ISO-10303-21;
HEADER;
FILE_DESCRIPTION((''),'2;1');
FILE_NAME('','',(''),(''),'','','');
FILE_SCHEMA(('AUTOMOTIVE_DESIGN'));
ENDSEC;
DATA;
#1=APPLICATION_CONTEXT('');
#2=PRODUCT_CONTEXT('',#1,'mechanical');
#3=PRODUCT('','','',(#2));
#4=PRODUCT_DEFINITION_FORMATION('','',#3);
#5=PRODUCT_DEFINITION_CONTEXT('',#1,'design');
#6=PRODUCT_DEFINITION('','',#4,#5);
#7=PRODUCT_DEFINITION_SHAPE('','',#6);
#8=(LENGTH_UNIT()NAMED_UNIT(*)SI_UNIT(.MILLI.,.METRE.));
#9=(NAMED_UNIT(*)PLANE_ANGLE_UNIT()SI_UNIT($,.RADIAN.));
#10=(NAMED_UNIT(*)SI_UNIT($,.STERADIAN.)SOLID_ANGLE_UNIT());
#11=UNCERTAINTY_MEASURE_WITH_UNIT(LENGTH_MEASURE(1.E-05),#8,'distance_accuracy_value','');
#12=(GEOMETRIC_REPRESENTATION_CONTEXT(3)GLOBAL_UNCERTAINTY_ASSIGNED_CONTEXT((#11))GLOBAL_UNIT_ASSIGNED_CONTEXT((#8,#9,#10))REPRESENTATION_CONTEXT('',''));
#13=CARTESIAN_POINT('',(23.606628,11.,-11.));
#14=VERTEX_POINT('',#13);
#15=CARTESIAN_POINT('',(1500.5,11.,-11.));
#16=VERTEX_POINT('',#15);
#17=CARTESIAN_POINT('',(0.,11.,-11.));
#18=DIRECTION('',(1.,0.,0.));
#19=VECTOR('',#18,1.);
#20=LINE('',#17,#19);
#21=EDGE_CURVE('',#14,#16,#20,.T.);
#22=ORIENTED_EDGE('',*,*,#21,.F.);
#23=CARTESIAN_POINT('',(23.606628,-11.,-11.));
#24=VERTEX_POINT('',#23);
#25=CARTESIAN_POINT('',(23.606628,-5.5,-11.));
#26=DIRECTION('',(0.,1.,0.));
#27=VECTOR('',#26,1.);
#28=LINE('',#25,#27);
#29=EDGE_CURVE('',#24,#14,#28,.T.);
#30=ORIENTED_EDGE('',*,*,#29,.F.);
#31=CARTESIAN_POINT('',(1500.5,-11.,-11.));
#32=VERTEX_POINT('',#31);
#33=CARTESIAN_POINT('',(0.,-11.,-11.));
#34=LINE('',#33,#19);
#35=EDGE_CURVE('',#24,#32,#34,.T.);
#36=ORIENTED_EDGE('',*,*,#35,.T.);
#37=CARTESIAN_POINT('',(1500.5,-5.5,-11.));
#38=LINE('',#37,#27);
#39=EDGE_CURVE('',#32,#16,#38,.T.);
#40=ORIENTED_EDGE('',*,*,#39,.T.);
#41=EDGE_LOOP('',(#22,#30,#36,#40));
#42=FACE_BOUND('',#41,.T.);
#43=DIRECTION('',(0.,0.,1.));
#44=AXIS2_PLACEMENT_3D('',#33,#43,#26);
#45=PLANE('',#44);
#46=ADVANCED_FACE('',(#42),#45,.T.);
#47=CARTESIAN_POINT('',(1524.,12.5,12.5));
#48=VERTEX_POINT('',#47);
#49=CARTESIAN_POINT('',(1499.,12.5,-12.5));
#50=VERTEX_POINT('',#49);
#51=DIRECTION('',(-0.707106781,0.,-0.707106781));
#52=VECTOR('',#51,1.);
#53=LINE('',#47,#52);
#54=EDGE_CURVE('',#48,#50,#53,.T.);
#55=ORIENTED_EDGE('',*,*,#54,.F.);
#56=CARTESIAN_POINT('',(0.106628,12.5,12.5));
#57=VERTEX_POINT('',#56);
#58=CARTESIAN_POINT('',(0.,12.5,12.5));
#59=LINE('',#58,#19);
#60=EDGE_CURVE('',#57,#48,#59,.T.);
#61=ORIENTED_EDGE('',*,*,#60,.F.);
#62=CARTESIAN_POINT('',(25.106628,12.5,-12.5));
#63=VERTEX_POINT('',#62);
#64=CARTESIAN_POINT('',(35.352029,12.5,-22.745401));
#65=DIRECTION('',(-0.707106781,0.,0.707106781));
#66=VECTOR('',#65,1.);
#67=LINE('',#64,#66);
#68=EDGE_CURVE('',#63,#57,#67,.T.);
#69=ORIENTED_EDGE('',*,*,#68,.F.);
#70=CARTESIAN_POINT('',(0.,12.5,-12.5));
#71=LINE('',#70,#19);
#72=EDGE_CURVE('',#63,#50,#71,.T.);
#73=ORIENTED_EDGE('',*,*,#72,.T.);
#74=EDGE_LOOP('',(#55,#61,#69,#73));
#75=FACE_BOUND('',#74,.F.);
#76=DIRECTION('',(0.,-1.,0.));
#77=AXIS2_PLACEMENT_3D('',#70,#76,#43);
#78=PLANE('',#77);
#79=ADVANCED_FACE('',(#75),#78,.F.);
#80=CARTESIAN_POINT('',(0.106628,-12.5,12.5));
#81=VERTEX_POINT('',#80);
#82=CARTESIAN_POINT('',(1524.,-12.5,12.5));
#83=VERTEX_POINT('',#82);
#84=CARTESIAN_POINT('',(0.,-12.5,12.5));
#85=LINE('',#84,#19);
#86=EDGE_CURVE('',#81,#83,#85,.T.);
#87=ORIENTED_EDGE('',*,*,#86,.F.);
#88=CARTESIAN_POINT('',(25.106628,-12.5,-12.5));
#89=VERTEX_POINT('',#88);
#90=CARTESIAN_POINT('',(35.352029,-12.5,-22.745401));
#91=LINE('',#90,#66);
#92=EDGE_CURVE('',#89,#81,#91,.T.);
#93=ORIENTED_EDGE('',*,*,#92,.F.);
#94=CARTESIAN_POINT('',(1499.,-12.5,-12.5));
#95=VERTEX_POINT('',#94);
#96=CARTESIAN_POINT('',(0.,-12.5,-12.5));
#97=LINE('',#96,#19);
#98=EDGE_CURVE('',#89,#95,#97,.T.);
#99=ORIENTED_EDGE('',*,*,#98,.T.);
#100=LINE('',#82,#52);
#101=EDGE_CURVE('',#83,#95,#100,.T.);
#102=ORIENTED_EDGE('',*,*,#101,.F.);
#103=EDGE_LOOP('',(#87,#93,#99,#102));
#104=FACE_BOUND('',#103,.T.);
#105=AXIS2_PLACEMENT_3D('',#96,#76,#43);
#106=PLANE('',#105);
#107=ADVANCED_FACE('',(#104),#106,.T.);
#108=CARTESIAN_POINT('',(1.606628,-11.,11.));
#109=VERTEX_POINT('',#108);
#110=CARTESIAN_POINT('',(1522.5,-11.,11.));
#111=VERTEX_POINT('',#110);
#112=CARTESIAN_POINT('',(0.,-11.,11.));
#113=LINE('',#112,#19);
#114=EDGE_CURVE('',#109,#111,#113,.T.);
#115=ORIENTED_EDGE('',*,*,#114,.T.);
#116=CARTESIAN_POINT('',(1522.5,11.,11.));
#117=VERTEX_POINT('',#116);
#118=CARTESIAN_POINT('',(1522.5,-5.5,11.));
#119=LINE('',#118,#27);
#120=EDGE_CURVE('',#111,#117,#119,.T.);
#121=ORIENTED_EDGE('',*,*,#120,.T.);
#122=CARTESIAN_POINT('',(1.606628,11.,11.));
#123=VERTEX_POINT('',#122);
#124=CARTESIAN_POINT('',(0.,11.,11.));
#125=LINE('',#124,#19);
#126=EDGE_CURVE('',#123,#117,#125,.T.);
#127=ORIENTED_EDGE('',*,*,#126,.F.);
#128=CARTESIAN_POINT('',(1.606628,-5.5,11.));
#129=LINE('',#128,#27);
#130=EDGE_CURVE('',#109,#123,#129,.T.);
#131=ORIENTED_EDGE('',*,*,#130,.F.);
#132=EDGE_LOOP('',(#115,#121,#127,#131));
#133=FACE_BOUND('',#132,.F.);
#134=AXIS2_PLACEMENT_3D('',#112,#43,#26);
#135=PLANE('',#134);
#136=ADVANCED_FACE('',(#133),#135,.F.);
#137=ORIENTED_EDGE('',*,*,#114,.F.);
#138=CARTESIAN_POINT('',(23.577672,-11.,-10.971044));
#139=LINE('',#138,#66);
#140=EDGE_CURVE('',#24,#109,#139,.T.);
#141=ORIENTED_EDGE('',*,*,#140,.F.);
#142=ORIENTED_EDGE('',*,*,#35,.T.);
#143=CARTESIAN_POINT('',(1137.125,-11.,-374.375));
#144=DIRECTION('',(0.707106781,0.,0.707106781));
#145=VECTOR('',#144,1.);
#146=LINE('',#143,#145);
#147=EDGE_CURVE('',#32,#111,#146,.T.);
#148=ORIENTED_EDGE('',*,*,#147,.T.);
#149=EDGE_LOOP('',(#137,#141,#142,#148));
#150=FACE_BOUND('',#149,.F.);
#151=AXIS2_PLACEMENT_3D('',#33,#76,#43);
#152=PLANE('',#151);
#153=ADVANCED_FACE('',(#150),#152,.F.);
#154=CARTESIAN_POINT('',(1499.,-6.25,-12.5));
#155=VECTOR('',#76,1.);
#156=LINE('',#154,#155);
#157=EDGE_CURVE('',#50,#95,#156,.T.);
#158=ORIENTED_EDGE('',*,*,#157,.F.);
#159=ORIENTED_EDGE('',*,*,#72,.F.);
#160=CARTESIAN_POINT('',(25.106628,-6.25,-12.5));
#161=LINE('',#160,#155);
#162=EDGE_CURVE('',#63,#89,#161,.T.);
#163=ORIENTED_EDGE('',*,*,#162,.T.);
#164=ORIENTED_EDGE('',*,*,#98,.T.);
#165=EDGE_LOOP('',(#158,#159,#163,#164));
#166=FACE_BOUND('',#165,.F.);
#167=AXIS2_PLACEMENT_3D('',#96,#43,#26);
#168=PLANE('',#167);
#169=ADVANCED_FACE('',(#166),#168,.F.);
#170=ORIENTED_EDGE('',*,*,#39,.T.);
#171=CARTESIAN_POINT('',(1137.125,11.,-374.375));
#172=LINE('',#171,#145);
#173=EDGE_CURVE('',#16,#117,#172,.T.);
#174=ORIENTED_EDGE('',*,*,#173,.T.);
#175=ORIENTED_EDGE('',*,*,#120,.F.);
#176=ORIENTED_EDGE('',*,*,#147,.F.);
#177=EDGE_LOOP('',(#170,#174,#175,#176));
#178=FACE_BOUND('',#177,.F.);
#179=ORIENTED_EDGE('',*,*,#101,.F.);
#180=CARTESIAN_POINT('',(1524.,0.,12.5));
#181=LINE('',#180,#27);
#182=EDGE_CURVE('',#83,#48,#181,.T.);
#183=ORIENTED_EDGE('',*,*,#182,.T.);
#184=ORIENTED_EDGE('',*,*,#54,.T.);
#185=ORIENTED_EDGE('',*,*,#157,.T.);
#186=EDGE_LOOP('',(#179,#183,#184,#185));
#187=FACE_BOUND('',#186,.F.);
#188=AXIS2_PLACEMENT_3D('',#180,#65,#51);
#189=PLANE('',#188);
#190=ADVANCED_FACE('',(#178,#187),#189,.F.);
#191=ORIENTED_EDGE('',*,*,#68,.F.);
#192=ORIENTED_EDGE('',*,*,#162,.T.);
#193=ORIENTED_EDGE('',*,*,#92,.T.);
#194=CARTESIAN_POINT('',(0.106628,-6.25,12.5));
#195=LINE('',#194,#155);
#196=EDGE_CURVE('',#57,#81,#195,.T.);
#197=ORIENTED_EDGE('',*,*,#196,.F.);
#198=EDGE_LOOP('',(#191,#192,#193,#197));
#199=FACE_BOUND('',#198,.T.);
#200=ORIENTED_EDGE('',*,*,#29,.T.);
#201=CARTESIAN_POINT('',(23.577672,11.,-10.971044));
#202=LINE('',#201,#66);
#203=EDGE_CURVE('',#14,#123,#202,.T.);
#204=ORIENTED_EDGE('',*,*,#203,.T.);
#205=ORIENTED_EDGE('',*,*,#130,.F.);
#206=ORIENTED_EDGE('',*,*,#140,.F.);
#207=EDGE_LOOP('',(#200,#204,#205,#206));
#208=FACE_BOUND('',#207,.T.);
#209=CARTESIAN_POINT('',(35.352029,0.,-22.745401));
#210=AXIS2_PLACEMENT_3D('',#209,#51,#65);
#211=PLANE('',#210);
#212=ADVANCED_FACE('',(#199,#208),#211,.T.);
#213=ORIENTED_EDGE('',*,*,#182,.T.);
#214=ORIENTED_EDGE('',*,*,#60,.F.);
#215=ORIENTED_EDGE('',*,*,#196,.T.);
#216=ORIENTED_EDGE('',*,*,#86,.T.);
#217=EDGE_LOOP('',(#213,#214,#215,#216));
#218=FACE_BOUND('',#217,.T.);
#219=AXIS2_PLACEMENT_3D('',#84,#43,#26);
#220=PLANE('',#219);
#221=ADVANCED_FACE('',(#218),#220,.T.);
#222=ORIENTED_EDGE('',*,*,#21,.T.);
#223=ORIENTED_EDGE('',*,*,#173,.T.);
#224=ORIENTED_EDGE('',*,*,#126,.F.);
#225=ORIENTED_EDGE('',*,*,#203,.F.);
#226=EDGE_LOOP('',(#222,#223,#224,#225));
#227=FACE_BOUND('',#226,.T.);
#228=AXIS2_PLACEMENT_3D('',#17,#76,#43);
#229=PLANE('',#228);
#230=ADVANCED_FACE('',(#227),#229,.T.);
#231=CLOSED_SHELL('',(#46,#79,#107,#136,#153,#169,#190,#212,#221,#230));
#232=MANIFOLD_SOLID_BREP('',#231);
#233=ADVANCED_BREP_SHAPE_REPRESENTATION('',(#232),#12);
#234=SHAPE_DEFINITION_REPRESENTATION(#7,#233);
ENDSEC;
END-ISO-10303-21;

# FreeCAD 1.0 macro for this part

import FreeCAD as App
import Part
import Sketcher
from FreeCAD import Vector
Q = App.Units.Quantity

doc = App.newDocument("Part")
body = doc.addObject("PartDesign::Body", "Body")

sketch1 = doc.addObject("Sketcher::SketchObject", "Sketch")
body.addObject(sketch1)
sketch1.AttachmentSupport = (doc.YZ_Plane, [""])
sketch1.MapMode = "FlatFace"
sketch1.addGeometry(Part.LineSegment(Vector(-12.5, 12.5, 0), Vector(-12.5, -12.5, 0)), False)
sketch1.addGeometry(Part.LineSegment(Vector(-12.5, -12.5, 0), Vector(12.5, -12.5, 0)), False)
sketch1.addGeometry(Part.LineSegment(Vector(12.5, -12.5, 0), Vector(12.5, 12.5, 0)), False)
sketch1.addGeometry(Part.LineSegment(Vector(12.5, 12.5, 0), Vector(-12.5, 12.5, 0)), False)
sketch1.addConstraint(Sketcher.Constraint("Coincident", 0, 2, 1, 1))
sketch1.addConstraint(Sketcher.Constraint("Coincident", 1, 2, 2, 1))
sketch1.addConstraint(Sketcher.Constraint("Coincident", 2, 2, 3, 1))
sketch1.addConstraint(Sketcher.Constraint("Coincident", 3, 2, 0, 1))
sketch1.addConstraint(Sketcher.Constraint("Vertical", 0))
sketch1.addConstraint(Sketcher.Constraint("Horizontal", 1))
sketch1.addConstraint(Sketcher.Constraint("Vertical", 2))
sketch1.addConstraint(Sketcher.Constraint("Horizontal", 3))
sketch1.addConstraint(Sketcher.Constraint("Symmetric", 0, 2, 2, 2, -1, 1))
sketch1.addConstraint(Sketcher.Constraint("Equal", 3, 0))
sketch1.addConstraint(Sketcher.Constraint("DistanceX", 1, 1, 1, 2, 25.0))
pad1 = doc.addObject("PartDesign::Pad", "Pad")
body.addObject(pad1)
pad1.Profile = sketch1
pad1.Length = 1524

sketch2 = doc.addObject("Sketcher::SketchObject", "Sketch001")
body.addObject(sketch2)
sketch2.AttachmentSupport = (doc.XZ_Plane, [""])
sketch2.MapMode = "FlatFace"
sketch2.addGeometry(Part.LineSegment(Vector(35.352029, -22.745401, 0), Vector(0, 12.606628, 0)), False)
sketch2.addGeometry(Part.LineSegment(Vector(0, 12.606628, 0), Vector(0, -26.686775, 0)), False)
sketch2.addGeometry(Part.LineSegment(Vector(0, -26.686775, 0), Vector(35.352029, -22.745401, 0)), False)
sketch2.addGeometry(Part.LineSegment(Vector(1524, -22.745401, 0), Vector(1524, 12.5, 0)), False)
sketch2.addGeometry(Part.LineSegment(Vector(1524, 12.5, 0), Vector(1494.63703, -16.86297, 0)), False)
sketch2.addGeometry(Part.LineSegment(Vector(1494.63703, -16.86297, 0), Vector(1524, -22.745401, 0)), False)
sketch2.addConstraint(Sketcher.Constraint("Coincident", 0, 2, 1, 1))
sketch2.addConstraint(Sketcher.Constraint("Coincident", 1, 2, 2, 1))
sketch2.addConstraint(Sketcher.Constraint("Coincident", 2, 2, 0, 1))
sketch2.addConstraint(Sketcher.Constraint("Coincident", 3, 2, 4, 1))
sketch2.addConstraint(Sketcher.Constraint("Coincident", 4, 2, 5, 1))
sketch2.addConstraint(Sketcher.Constraint("Coincident", 5, 2, 3, 1))
sketch2.addConstraint(Sketcher.Constraint("Vertical", 1))
sketch2.addConstraint(Sketcher.Constraint("Vertical", 3))
sketch2.addConstraint(Sketcher.Constraint("PointOnObject", 0, 2, -2))
sketch2.addConstraint(Sketcher.Constraint("Perpendicular", 0, 4))
sketch2.addConstraint(Sketcher.Constraint("Horizontal", 2, 2, 5, 2))
sketch2.addConstraint(Sketcher.Constraint("Angle", 0, Q("135 deg")))
sketch2.addConstraint(Sketcher.Constraint("DistanceX", -1, 1, 3, 2, 1524.0))
sketch2.addConstraint(Sketcher.Constraint("DistanceY", -1, 1, 3, 2, 12.5))
sketch2.addConstraint(Sketcher.Constraint("DistanceY", 3, 1, 3, 2, 35.245401))
sketch2.addConstraint(Sketcher.Constraint("DistanceX", 2, 2, 4, 2, 1459.285001))
sketch2.addConstraint(Sketcher.Constraint("Distance", 0, 49.995319))
sketch2.addConstraint(Sketcher.Constraint("Distance", 2, 35.571061))
pocket1 = doc.addObject("PartDesign::Pocket", "Pocket")
body.addObject(pocket1)
pocket1.Profile = sketch2
pocket1.Length = 25
pocket1.Midplane = True

sketch3 = doc.addObject("Sketcher::SketchObject", "Sketch002")
body.addObject(sketch3)
sketch3.AttachmentSupport = (doc.YZ_Plane, [""])
sketch3.MapMode = "FlatFace"
sketch3.addGeometry(Part.LineSegment(Vector(-11, 11, 0), Vector(-11, -11, 0)), False)
sketch3.addGeometry(Part.LineSegment(Vector(-11, -11, 0), Vector(11, -11, 0)), False)
sketch3.addGeometry(Part.LineSegment(Vector(11, -11, 0), Vector(11, 11, 0)), False)
sketch3.addGeometry(Part.LineSegment(Vector(11, 11, 0), Vector(-11, 11, 0)), False)
sketch3.addConstraint(Sketcher.Constraint("Coincident", 0, 2, 1, 1))
sketch3.addConstraint(Sketcher.Constraint("Coincident", 1, 2, 2, 1))
sketch3.addConstraint(Sketcher.Constraint("Coincident", 2, 2, 3, 1))
sketch3.addConstraint(Sketcher.Constraint("Coincident", 3, 2, 0, 1))
sketch3.addConstraint(Sketcher.Constraint("Vertical", 0))
sketch3.addConstraint(Sketcher.Constraint("Horizontal", 1))
sketch3.addConstraint(Sketcher.Constraint("Vertical", 2))
sketch3.addConstraint(Sketcher.Constraint("Horizontal", 3))
sketch3.addConstraint(Sketcher.Constraint("Symmetric", 0, 2, 2, 2, -1, 1))
sketch3.addConstraint(Sketcher.Constraint("Equal", 3, 0))
sketch3.addConstraint(Sketcher.Constraint("DistanceX", 1, 1, 1, 2, 22.0))
pocket2 = doc.addObject("PartDesign::Pocket", "Pocket001")
body.addObject(pocket2)
pocket2.Profile = sketch3
pocket2.Type = "ThroughAll"
pocket2.Reversed = True

doc.recompute()
